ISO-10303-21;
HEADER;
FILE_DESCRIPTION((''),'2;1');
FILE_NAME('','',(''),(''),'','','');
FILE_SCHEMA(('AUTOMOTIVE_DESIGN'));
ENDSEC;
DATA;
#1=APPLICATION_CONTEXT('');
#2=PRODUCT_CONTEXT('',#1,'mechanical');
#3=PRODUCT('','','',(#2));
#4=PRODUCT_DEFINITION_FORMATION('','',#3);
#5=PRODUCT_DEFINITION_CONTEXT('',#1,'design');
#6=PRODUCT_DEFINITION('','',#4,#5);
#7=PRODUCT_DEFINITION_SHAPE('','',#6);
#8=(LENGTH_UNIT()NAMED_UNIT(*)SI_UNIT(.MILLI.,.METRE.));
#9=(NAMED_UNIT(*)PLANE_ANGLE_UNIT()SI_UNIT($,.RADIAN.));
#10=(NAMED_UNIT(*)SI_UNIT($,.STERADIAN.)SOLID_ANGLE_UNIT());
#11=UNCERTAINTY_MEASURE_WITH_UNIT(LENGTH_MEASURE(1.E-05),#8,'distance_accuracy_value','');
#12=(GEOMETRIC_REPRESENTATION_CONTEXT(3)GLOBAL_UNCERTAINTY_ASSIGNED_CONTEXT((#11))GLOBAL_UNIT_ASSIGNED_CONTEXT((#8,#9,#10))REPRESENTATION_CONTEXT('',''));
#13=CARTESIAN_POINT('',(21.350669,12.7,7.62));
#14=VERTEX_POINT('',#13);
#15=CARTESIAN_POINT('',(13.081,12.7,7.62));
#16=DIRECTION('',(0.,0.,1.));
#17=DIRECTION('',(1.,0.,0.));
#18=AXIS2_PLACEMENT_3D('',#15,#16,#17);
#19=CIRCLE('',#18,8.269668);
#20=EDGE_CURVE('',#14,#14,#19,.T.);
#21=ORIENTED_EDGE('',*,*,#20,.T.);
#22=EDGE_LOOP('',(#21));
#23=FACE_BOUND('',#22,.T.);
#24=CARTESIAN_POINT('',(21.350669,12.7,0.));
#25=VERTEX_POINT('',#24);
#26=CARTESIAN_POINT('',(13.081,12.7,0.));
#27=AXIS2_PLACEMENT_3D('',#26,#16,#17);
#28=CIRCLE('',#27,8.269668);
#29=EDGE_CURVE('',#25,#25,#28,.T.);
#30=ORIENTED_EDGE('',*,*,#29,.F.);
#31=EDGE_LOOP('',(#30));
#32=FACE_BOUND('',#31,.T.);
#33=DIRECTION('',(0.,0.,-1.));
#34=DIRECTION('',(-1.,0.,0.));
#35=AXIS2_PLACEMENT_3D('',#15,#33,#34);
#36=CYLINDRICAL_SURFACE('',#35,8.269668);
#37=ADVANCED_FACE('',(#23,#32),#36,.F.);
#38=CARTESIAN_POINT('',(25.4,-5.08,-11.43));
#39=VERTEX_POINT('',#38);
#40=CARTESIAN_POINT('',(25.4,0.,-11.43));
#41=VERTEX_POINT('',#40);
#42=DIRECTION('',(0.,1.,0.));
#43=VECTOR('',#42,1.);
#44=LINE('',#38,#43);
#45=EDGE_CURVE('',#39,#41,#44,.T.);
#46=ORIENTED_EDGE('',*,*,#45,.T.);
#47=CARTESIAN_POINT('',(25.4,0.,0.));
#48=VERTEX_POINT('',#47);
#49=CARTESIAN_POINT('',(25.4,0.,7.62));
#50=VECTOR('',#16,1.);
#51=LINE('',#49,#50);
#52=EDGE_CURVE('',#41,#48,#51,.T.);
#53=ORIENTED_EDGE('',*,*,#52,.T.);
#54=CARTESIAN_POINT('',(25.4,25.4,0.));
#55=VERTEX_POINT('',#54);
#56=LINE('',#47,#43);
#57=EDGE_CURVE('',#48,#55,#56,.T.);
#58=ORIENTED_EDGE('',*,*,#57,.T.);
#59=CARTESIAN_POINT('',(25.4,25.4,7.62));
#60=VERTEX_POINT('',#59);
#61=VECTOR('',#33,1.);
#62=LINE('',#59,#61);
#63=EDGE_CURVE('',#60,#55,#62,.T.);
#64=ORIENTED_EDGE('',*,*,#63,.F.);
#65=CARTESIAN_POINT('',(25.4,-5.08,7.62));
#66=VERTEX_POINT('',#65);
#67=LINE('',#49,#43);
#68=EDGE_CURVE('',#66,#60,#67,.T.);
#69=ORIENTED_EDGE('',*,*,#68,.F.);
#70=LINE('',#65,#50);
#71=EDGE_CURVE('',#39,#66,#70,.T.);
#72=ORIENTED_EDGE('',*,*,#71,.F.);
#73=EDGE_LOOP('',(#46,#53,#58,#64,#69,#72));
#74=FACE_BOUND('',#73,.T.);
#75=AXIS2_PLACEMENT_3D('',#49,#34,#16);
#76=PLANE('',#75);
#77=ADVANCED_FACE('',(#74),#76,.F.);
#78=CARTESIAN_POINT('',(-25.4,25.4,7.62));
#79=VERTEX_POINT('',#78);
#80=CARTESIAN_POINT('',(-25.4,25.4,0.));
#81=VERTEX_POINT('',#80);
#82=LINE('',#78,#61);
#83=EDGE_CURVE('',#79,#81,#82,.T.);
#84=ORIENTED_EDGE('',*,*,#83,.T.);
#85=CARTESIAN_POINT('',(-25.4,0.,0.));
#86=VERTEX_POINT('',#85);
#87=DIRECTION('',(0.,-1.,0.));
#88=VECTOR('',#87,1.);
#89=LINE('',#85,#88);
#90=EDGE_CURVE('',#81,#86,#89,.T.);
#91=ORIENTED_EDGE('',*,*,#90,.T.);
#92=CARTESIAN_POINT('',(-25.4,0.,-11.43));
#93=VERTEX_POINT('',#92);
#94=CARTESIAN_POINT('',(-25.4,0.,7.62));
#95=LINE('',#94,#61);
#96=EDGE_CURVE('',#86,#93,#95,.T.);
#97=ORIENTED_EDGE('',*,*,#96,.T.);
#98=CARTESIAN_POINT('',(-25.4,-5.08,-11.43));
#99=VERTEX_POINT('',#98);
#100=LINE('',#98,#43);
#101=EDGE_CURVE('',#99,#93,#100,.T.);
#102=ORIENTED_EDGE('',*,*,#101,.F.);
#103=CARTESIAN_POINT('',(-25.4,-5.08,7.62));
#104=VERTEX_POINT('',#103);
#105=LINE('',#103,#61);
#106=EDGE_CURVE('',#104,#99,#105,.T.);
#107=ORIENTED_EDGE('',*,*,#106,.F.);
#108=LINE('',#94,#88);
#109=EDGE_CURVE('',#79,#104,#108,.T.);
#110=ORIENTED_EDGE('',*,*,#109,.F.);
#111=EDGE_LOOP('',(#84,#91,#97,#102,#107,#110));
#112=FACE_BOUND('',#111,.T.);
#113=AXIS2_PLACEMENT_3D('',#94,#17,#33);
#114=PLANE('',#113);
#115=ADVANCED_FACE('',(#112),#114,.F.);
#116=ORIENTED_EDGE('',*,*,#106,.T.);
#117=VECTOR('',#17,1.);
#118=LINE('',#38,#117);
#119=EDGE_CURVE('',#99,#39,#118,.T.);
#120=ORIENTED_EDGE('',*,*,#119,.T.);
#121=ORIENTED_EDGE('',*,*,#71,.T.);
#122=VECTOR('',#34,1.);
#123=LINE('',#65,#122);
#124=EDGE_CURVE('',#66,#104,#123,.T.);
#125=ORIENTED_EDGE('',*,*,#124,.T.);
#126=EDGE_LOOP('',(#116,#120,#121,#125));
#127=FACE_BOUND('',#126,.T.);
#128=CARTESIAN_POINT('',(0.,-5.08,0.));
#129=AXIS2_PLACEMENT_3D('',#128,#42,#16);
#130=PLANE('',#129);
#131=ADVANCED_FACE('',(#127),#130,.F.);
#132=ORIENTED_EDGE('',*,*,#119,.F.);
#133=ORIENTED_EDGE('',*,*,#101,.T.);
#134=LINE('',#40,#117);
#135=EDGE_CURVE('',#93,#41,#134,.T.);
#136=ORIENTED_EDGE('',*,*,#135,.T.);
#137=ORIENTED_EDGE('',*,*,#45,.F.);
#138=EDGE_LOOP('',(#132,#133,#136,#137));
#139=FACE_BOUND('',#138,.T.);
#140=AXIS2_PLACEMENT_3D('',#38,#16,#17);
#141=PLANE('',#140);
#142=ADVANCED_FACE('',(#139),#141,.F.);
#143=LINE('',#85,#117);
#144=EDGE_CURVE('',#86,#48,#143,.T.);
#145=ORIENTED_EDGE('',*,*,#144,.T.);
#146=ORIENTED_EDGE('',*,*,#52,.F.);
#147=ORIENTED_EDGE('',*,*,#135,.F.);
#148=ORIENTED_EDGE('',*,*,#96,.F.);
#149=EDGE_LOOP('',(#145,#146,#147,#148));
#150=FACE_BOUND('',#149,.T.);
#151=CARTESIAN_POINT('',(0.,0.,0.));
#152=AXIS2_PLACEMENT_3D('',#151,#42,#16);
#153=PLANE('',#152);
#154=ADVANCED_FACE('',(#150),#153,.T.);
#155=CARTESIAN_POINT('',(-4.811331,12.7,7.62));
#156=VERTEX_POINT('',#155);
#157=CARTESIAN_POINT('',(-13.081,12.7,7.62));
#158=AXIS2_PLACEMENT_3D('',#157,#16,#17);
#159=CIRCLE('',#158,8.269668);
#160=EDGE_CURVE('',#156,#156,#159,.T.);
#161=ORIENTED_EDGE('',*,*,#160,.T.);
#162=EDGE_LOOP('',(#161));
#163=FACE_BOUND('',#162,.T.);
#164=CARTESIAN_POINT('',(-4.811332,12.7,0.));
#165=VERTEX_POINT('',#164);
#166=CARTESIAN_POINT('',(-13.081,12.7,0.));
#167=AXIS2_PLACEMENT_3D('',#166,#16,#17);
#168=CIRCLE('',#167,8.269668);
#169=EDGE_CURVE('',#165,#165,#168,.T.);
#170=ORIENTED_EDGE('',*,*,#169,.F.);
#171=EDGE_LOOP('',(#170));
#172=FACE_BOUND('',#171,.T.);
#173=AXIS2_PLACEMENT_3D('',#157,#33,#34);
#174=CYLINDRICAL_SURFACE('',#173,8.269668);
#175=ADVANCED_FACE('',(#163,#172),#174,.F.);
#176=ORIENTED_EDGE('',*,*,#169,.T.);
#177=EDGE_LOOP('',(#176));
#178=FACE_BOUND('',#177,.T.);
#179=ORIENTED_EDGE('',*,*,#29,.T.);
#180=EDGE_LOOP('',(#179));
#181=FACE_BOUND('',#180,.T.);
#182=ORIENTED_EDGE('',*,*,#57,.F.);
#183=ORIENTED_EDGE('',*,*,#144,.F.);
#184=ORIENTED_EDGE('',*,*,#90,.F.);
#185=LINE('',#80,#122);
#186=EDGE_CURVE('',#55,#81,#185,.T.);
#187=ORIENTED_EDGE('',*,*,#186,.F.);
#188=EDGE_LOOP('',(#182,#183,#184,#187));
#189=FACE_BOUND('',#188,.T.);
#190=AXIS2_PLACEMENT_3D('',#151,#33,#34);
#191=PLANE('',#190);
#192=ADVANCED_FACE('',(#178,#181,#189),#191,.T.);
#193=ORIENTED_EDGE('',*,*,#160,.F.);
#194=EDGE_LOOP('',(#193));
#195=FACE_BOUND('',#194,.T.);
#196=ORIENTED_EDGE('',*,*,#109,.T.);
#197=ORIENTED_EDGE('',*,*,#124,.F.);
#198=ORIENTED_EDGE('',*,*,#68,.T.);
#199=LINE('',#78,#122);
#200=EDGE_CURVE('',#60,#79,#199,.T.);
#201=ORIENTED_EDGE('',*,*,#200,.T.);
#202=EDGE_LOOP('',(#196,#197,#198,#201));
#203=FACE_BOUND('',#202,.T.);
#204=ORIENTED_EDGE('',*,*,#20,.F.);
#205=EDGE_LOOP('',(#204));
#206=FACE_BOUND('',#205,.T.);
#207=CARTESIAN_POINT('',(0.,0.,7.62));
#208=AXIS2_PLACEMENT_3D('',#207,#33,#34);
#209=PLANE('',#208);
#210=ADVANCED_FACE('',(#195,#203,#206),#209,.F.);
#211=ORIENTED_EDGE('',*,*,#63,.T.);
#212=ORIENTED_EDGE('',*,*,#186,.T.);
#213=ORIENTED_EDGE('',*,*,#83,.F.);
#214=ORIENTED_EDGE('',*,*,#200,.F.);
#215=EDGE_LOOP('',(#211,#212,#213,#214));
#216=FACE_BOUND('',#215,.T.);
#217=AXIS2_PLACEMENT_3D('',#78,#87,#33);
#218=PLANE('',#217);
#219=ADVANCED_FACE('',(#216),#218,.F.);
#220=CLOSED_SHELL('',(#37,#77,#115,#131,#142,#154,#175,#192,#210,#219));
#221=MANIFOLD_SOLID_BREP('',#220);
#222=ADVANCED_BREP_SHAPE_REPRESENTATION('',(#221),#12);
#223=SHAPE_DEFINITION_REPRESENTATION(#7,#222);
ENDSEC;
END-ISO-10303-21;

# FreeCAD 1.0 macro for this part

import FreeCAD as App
import Part
import Sketcher
from FreeCAD import Vector
Q = App.Units.Quantity

doc = App.newDocument("Part")
params = doc.addObject("Spreadsheet::Sheet", "Params")
for row, (alias, value) in enumerate([
    ("sketch1_width", "2 in"),
    ("sketch1_height", "1 in"),
    ("pad1_length", "0.3 in"),
    ("sketch3_width", "2 in"),
    ("sketch3_height", "0.75 in"),
    ("pad2_length", "0.2 in"),
], start=1):
    params.set(f"A{row}", alias)
    params.set(f"B{row}", "=" + value)
    params.setAlias(f"B{row}", alias)

body = doc.addObject("PartDesign::Body", "Body")

sketch1 = body.newObject("Sketcher::SketchObject", "Sketch")
sketch1.AttachmentSupport = (doc.getObject("XY_Plane"), [""])
sketch1.MapMode = "FlatFace"
sketch1.addGeometry([
    Part.LineSegment(Vector(-25, 25, 0), Vector(-25, 0, 0)),
    Part.LineSegment(Vector(-25, 0, 0), Vector(25, 0, 0)),
    Part.LineSegment(Vector(25, 0, 0), Vector(25, 25, 0)),
    Part.LineSegment(Vector(25, 25, 0), Vector(-25, 25, 0)),
], False)
sketch1.addConstraint([
    Sketcher.Constraint("Coincident", 0, 2, 1, 1),
    Sketcher.Constraint("Coincident", 1, 2, 2, 1),
    Sketcher.Constraint("Coincident", 2, 2, 3, 1),
    Sketcher.Constraint("Coincident", 3, 2, 0, 1),
    Sketcher.Constraint("Vertical", 0),
    Sketcher.Constraint("Horizontal", 1),
    Sketcher.Constraint("Vertical", 2),
    Sketcher.Constraint("Horizontal", 3),
    Sketcher.Constraint("Symmetric", 0, 2, 1, 2, -1, 1),
    Sketcher.Constraint("DistanceX", 1, 1, 1, 2, Q("2 in")),
    Sketcher.Constraint("DistanceY", 0, 2, 0, 1, Q("1 in")),
])
sketch1.setExpression("Constraints[9]", "Params.sketch1_width")
sketch1.setExpression("Constraints[10]", "Params.sketch1_height")
pad1 = body.newObject("PartDesign::Pad", "Pad")
pad1.Profile = sketch1
pad1.setExpression("Length", "Params.pad1_length")

sketch2 = body.newObject("Sketcher::SketchObject", "Sketch001")
sketch2.AttachmentSupport = (doc.getObject("XY_Plane"), [""])
sketch2.MapMode = "FlatFace"
sketch2.addGeometry([
    Part.Circle(Vector(13, 13, 0), Vector(0, 0, 1), 8),
    Part.Circle(Vector(-13, 13, 0), Vector(0, 0, 1), 8),
], False)
sketch2.addConstraint([
    Sketcher.Constraint("Equal", 0, 1),
    Sketcher.Constraint("Symmetric", 0, 3, 1, 3, -2),
    Sketcher.Constraint("DistanceY", -1, 1, 0, 3, Q("0.5 in")),
    Sketcher.Constraint("DistanceX", 1, 3, 0, 3, Q("1.03 in")),
    Sketcher.Constraint("Diameter", 0, 16.539337),
])
pocket1 = body.newObject("PartDesign::Pocket", "Pocket")
pocket1.Profile = sketch2
pocket1.Type = "ThroughAll"
pocket1.Reversed = True

sketch3 = body.newObject("Sketcher::SketchObject", "Sketch002")
sketch3.AttachmentSupport = (doc.getObject("XZ_Plane"), [""])
sketch3.MapMode = "FlatFace"
sketch3.addGeometry([
    Part.LineSegment(Vector(25, -11, 0), Vector(25, 8, 0)),
    Part.LineSegment(Vector(25, 8, 0), Vector(-25, 8, 0)),
    Part.LineSegment(Vector(-25, 8, 0), Vector(-25, -11, 0)),
    Part.LineSegment(Vector(-25, -11, 0), Vector(25, -11, 0)),
], False)
sketch3.addConstraint([
    Sketcher.Constraint("Coincident", 0, 2, 1, 1),
    Sketcher.Constraint("Coincident", 1, 2, 2, 1),
    Sketcher.Constraint("Coincident", 2, 2, 3, 1),
    Sketcher.Constraint("Coincident", 3, 2, 0, 1),
    Sketcher.Constraint("Vertical", 0),
    Sketcher.Constraint("Horizontal", 1),
    Sketcher.Constraint("Vertical", 2),
    Sketcher.Constraint("Horizontal", 3),
    Sketcher.Constraint("DistanceX", 1, 2, 1, 1, Q("2 in")),
    Sketcher.Constraint("DistanceX", -1, 1, 0, 2, Q("1 in")),
    Sketcher.Constraint("DistanceY", 0, 1, 0, 2, Q("0.75 in")),
    Sketcher.Constraint("DistanceY", -1, 1, 0, 2, Q("0.3 in")),
])
sketch3.setExpression("Constraints[8]", "Params.sketch3_width")
sketch3.setExpression("Constraints[10]", "Params.sketch3_height")
pad2 = body.newObject("PartDesign::Pad", "Pad001")
pad2.Profile = sketch3
pad2.setExpression("Length", "Params.pad2_length")

doc.recompute()
